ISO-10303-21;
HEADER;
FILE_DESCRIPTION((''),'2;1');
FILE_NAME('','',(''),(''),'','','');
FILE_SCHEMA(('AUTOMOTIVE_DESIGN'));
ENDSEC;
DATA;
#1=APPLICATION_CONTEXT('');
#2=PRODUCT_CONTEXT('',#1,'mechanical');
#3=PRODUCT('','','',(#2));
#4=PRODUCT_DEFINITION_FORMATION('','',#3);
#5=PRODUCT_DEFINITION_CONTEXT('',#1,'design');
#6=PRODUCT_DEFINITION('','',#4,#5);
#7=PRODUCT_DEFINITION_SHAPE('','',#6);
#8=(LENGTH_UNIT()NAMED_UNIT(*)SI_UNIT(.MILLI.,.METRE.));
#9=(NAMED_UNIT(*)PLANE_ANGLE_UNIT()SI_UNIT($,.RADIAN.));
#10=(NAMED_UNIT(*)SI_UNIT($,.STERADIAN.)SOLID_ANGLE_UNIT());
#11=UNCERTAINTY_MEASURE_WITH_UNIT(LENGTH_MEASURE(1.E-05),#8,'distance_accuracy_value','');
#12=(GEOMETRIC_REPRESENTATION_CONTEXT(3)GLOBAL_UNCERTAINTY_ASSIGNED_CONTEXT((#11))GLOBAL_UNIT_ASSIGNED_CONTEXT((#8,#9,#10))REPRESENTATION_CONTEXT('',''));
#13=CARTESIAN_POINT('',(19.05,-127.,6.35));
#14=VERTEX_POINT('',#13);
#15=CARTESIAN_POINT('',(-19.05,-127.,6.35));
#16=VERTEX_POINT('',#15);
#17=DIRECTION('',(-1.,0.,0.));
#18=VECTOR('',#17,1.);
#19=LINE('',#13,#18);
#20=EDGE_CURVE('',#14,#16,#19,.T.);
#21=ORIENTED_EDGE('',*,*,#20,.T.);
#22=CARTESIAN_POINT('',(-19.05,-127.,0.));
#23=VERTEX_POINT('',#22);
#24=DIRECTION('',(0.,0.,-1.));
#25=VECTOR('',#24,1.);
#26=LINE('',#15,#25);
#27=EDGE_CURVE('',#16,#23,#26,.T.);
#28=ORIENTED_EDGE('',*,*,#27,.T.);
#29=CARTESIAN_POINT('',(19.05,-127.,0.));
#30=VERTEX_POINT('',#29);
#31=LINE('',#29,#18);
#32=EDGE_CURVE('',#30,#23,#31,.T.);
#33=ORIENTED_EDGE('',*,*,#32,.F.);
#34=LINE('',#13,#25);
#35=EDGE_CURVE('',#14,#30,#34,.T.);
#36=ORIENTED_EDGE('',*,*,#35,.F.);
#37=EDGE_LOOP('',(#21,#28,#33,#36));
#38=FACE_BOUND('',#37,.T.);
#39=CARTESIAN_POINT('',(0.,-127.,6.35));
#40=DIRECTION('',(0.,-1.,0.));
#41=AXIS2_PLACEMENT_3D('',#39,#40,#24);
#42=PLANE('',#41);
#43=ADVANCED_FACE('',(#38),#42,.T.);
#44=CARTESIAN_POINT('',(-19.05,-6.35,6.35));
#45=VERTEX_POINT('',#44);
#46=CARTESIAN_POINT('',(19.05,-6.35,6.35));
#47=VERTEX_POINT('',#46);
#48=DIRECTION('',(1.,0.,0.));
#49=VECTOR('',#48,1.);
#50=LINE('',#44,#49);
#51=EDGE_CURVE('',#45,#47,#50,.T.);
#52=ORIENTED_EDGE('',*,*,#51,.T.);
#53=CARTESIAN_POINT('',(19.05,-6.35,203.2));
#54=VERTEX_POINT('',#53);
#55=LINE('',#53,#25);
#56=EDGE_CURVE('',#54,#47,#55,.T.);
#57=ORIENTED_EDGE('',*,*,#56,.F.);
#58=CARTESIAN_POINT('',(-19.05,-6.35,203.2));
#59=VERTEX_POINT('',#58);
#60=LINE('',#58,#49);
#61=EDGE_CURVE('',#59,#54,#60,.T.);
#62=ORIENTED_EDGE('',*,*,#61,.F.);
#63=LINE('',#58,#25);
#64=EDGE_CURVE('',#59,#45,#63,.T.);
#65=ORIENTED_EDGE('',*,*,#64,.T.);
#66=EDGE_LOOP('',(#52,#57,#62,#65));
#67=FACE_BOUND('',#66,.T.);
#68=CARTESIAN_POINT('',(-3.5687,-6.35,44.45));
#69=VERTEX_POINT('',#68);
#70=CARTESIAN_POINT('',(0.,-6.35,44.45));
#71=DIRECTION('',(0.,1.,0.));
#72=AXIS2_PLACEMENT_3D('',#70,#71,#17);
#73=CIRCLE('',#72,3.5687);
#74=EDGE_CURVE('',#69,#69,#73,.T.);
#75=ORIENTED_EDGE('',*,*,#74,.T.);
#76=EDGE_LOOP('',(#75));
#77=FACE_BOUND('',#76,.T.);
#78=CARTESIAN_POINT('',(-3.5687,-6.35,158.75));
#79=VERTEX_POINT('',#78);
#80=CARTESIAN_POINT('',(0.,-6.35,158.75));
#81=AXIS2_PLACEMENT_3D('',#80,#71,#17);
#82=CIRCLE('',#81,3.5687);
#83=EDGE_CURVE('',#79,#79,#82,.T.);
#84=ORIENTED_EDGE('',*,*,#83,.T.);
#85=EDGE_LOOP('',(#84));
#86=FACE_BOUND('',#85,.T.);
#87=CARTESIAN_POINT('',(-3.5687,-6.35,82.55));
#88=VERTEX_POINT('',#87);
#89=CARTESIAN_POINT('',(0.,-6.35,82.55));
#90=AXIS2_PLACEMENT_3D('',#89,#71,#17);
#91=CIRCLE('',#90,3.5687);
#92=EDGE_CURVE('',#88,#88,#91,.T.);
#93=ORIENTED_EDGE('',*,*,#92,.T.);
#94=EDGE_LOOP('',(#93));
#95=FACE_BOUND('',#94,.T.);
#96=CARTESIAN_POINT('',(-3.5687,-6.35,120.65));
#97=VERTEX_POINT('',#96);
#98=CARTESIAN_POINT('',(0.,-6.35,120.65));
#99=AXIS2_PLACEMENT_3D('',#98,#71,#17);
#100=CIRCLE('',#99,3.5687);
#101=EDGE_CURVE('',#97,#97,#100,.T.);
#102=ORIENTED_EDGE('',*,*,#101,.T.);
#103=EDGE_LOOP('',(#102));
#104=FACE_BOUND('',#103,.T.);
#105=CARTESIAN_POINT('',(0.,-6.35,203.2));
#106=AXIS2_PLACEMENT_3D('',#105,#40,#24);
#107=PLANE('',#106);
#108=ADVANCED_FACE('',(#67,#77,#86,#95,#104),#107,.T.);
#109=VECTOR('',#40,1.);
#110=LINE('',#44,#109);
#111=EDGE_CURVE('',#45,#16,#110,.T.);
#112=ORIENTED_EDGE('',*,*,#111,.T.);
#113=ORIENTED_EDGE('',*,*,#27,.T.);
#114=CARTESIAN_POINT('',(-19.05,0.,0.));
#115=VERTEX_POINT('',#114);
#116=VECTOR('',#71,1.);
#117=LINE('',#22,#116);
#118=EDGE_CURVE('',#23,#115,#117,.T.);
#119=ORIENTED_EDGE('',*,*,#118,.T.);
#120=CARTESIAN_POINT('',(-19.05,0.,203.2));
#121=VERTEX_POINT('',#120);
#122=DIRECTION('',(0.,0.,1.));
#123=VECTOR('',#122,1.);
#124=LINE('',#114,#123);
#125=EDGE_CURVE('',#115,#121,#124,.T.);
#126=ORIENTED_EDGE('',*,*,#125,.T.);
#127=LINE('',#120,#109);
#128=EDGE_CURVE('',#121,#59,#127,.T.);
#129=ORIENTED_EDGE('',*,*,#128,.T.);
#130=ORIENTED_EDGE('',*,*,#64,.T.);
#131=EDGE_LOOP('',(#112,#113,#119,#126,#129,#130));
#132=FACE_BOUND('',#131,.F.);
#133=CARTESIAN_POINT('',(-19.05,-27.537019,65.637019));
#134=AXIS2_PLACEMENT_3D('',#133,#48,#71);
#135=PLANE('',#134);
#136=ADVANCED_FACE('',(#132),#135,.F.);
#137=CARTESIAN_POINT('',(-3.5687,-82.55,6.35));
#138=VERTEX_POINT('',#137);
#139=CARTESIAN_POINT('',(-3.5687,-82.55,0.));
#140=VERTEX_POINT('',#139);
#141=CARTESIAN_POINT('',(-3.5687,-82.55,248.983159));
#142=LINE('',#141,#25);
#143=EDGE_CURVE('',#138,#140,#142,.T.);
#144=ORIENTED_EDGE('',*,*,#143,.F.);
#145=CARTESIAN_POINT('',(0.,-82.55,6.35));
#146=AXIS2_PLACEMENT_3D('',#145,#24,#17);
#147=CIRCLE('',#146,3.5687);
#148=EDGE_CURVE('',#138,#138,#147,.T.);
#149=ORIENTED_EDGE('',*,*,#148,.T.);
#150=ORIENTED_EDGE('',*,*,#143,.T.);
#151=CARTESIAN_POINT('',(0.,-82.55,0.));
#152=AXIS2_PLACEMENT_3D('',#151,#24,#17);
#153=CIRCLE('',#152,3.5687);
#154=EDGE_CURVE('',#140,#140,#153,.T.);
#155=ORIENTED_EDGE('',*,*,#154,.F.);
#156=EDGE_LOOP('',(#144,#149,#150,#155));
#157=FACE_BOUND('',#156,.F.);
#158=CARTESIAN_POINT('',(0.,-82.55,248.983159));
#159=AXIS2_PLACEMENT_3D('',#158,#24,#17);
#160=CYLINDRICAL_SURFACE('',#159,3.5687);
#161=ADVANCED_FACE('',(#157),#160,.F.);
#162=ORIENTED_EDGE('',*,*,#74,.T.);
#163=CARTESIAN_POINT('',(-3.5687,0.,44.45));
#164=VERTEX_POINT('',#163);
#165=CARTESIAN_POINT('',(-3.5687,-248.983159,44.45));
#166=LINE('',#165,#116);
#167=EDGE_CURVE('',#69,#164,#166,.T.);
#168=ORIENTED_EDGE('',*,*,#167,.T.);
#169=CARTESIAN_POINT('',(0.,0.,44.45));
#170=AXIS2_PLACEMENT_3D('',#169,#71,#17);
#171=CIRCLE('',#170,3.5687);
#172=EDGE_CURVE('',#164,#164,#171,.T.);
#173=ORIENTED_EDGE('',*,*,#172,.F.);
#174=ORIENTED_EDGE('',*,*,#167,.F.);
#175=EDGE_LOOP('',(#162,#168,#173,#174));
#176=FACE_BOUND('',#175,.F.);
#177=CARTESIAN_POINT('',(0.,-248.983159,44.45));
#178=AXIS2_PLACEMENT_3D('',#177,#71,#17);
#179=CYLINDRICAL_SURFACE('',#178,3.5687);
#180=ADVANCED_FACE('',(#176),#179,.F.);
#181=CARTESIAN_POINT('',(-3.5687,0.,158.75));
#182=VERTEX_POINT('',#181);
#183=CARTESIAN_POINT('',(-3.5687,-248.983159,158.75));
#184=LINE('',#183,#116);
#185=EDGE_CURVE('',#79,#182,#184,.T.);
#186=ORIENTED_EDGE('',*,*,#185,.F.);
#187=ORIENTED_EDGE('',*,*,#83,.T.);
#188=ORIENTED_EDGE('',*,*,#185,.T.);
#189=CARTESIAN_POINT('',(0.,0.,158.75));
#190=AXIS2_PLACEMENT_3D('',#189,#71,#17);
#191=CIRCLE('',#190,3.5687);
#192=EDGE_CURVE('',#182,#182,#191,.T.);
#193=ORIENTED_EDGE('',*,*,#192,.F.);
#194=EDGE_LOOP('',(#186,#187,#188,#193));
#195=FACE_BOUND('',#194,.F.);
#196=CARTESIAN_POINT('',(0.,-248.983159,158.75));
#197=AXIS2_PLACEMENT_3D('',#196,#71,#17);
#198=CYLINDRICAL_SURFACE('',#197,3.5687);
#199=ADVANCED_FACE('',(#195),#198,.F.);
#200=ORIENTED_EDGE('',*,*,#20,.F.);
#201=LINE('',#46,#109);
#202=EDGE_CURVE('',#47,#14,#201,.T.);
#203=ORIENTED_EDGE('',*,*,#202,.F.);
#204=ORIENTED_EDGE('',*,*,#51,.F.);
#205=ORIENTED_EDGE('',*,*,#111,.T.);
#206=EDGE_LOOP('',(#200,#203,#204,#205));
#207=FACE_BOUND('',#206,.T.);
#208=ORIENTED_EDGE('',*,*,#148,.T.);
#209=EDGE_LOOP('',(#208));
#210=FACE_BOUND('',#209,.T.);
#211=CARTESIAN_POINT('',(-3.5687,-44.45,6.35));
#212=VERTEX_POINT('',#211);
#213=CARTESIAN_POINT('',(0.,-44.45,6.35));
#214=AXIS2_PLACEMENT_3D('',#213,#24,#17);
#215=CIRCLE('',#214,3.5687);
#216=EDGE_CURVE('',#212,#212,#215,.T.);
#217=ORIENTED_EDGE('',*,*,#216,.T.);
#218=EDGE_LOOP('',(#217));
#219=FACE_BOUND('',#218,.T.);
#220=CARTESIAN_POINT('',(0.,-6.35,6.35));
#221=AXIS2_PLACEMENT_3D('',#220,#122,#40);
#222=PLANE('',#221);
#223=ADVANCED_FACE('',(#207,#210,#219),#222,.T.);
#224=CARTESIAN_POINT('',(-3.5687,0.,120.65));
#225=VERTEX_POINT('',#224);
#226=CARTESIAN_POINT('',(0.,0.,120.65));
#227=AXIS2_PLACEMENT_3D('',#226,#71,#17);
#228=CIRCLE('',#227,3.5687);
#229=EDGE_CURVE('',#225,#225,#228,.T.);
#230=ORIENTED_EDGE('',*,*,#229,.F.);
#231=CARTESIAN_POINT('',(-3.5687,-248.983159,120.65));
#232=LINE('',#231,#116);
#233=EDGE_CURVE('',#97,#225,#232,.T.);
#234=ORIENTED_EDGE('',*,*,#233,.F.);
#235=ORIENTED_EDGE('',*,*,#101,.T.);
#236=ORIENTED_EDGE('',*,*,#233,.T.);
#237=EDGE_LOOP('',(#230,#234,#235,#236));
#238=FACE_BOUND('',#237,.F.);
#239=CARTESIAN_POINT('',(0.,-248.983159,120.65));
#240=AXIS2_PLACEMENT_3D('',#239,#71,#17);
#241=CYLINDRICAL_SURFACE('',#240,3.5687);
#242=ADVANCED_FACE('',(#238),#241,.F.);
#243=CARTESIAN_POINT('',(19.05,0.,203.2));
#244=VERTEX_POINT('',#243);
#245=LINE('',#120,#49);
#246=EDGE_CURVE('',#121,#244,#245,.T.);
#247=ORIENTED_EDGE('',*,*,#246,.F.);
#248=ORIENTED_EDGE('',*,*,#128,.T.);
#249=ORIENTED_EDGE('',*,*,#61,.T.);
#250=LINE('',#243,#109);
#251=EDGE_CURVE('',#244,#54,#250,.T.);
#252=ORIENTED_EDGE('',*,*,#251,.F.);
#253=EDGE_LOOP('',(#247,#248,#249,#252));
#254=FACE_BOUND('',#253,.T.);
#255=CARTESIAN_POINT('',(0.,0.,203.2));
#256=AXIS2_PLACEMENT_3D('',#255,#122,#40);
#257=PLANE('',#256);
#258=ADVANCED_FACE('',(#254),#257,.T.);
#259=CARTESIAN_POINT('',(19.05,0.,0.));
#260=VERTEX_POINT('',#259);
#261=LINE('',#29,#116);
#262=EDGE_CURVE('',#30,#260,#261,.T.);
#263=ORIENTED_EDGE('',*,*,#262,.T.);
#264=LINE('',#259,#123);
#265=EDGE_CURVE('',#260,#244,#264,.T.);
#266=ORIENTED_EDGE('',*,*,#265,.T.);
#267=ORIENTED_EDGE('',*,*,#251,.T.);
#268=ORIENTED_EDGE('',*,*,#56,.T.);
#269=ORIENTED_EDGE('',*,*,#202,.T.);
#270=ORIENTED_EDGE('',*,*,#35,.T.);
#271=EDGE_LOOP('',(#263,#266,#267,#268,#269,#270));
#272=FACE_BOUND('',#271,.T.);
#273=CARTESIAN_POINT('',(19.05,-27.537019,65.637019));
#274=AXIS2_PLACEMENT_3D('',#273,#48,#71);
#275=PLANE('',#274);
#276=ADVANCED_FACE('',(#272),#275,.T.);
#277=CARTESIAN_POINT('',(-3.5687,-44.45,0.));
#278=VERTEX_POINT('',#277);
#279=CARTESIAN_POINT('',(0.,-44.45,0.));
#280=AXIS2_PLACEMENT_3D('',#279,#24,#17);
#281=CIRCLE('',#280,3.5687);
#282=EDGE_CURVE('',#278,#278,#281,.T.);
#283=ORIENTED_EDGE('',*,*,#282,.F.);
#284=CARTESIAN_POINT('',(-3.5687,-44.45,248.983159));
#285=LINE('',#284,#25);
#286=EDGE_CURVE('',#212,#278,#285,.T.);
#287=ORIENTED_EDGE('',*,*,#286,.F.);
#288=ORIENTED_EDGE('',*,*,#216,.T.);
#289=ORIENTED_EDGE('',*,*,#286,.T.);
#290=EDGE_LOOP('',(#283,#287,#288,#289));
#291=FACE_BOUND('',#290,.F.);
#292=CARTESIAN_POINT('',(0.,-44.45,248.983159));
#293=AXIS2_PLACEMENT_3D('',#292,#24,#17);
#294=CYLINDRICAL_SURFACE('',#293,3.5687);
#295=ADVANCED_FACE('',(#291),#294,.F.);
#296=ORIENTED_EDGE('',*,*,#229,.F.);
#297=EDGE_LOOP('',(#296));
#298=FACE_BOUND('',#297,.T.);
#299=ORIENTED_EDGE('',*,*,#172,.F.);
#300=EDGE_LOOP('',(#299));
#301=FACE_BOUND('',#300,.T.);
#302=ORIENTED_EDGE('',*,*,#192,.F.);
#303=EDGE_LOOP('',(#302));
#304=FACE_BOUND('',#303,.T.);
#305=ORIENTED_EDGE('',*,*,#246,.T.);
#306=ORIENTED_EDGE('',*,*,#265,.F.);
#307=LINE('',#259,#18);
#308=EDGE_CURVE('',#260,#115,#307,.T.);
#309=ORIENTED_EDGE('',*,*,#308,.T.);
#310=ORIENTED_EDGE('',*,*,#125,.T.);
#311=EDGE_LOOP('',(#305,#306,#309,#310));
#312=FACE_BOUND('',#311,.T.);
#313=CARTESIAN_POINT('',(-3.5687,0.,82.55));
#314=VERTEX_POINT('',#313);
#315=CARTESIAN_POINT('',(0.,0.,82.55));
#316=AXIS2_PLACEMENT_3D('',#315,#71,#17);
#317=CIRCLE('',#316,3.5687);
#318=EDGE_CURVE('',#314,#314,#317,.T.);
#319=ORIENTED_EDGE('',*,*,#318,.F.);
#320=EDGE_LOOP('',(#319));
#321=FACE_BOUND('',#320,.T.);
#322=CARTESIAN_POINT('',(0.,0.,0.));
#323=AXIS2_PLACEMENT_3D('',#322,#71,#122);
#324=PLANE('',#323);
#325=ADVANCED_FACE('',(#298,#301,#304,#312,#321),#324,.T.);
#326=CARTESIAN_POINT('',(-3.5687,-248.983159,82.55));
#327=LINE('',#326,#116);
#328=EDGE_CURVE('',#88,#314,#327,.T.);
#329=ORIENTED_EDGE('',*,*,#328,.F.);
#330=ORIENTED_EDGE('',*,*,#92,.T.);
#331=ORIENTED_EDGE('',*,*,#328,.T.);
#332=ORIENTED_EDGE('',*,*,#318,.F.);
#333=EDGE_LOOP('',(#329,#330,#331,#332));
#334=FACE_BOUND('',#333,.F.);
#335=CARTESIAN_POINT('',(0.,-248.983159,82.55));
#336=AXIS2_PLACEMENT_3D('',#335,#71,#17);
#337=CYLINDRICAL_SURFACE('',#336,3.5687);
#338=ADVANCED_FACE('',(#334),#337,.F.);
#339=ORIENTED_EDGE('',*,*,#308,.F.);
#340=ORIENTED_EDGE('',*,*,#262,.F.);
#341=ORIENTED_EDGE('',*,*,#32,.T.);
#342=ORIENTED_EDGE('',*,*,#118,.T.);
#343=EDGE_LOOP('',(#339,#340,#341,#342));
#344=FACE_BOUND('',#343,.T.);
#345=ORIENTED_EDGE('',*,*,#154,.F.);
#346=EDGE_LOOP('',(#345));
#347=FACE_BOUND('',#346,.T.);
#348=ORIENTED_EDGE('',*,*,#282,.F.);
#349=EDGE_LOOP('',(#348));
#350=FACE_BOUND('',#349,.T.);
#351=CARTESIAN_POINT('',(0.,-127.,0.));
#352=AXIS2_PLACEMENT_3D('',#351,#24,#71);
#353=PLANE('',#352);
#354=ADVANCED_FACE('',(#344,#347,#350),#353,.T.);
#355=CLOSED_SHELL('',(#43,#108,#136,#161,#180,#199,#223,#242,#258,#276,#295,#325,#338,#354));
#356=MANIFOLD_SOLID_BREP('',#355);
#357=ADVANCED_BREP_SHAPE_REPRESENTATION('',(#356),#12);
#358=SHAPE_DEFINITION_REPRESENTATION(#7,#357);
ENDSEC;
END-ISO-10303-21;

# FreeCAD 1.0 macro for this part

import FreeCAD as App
import Part
import Sketcher
Q = App.Units.Quantity

doc = App.newDocument("Part")
body = doc.addObject("PartDesign::Body", "Body")

sketch1 = body.newObject("Sketcher::SketchObject", "Sketch")
sketch1.AttachmentSupport = (doc.getObject("YZ_Plane"), [""])
sketch1.MapMode = "FlatFace"
sketch1.addGeometry(Part.LineSegment(App.Vector(0, 0, 0), App.Vector(0, 203, 0)), False)
sketch1.addGeometry(Part.LineSegment(App.Vector(0, 203, 0), App.Vector(-6, 203, 0)), False)
sketch1.addGeometry(Part.LineSegment(App.Vector(-6, 203, 0), App.Vector(-6, 6, 0)), False)
sketch1.addGeometry(Part.LineSegment(App.Vector(-6, 6, 0), App.Vector(-127, 6, 0)), False)
sketch1.addGeometry(Part.LineSegment(App.Vector(-127, 6, 0), App.Vector(-127, 0, 0)), False)
sketch1.addGeometry(Part.LineSegment(App.Vector(-127, 0, 0), App.Vector(0, 0, 0)), False)
sketch1.addConstraint(Sketcher.Constraint("Coincident", 0, 2, 1, 1))
sketch1.addConstraint(Sketcher.Constraint("Coincident", 1, 2, 2, 1))
sketch1.addConstraint(Sketcher.Constraint("Coincident", 2, 2, 3, 1))
sketch1.addConstraint(Sketcher.Constraint("Coincident", 3, 2, 4, 1))
sketch1.addConstraint(Sketcher.Constraint("Coincident", 4, 2, 5, 1))
sketch1.addConstraint(Sketcher.Constraint("Coincident", 5, 2, 0, 1))
sketch1.addConstraint(Sketcher.Constraint("Vertical", 0))
sketch1.addConstraint(Sketcher.Constraint("Horizontal", 1))
sketch1.addConstraint(Sketcher.Constraint("Vertical", 2))
sketch1.addConstraint(Sketcher.Constraint("Horizontal", 3))
sketch1.addConstraint(Sketcher.Constraint("Vertical", 4))
sketch1.addConstraint(Sketcher.Constraint("Horizontal", 5))
sketch1.addConstraint(Sketcher.Constraint("Coincident", 5, 2, -1, 1))
sketch1.addConstraint(Sketcher.Constraint("Equal", 1, 4))
sketch1.addConstraint(Sketcher.Constraint("DistanceX", 5, 1, 5, 2, Q("5 in")))
sketch1.addConstraint(Sketcher.Constraint("DistanceY", 0, 1, 0, 2, Q("8 in")))
sketch1.addConstraint(Sketcher.Constraint("DistanceX", 1, 2, 1, 1, Q("0.25 in")))
pad1 = body.newObject("PartDesign::Pad", "Pad")
pad1.Profile = sketch1
pad1.Length = Q("1.5 in")
pad1.Midplane = True

sketch2 = body.newObject("Sketcher::SketchObject", "Sketch001")
sketch2.AttachmentSupport = (doc.getObject("XZ_Plane"), [""])
sketch2.MapMode = "FlatFace"
sketch2.AttachmentOffset = App.Placement(App.Vector(0, 0, 0.25 * 25.4), App.Rotation())
sketch2.addGeometry(Part.Circle(App.Vector(0, 158.7, 0), App.Vector(0, 0, 1), 3.6), False)
sketch2.addGeometry(Part.Circle(App.Vector(0, 120.6, 0), App.Vector(0, 0, 1), 3.6), False)
sketch2.addGeometry(Part.Circle(App.Vector(0, 82.5, 0), App.Vector(0, 0, 1), 3.6), False)
sketch2.addGeometry(Part.Circle(App.Vector(0, 44.4, 0), App.Vector(0, 0, 1), 3.6), False)
sketch2.addConstraint(Sketcher.Constraint("Equal", 0, 1))
sketch2.addConstraint(Sketcher.Constraint("Equal", 1, 2))
sketch2.addConstraint(Sketcher.Constraint("Equal", 2, 3))
sketch2.addConstraint(Sketcher.Constraint("PointOnObject", 0, 3, -2))
sketch2.addConstraint(Sketcher.Constraint("PointOnObject", 1, 3, -2))
sketch2.addConstraint(Sketcher.Constraint("PointOnObject", 2, 3, -2))
sketch2.addConstraint(Sketcher.Constraint("PointOnObject", 3, 3, -2))
sketch2.addConstraint(Sketcher.Constraint("Diameter", 0, Q("0.281 in")))
sketch2.addConstraint(Sketcher.Constraint("DistanceY", 2, 3, 0, 3, Q("3 in")))
sketch2.addConstraint(Sketcher.Constraint("DistanceY", 3, 3, 1, 3, Q("3 in")))
sketch2.addConstraint(Sketcher.Constraint("DistanceY", 1, 3, 0, 3, Q("1.5 in")))
sketch2.addConstraint(Sketcher.Constraint("DistanceY", -1, 1, 0, 3, Q("6.25 in")))
doc.recompute()
hole = body.newObject("PartDesign::Hole", "Hole")
hole.Profile = sketch2
hole.ThreadType = "None"
hole.Diameter = Q("0.281 in")
hole.DepthType = "ThroughAll"

sketch3 = body.newObject("Sketcher::SketchObject", "Sketch002")
sketch3.AttachmentSupport = (doc.getObject("XY_Plane"), [""])
sketch3.MapMode = "FlatFace"
sketch3.AttachmentOffset = App.Placement(App.Vector(0, 0, 0.25 * 25.4), App.Rotation())
sketch3.addGeometry(Part.Circle(App.Vector(0, -44.4, 0), App.Vector(0, 0, 1), 3.6), False)
sketch3.addGeometry(Part.Circle(App.Vector(0, -82.5, 0), App.Vector(0, 0, 1), 3.6), False)
sketch3.addConstraint(Sketcher.Constraint("Equal", 0, 1))
sketch3.addConstraint(Sketcher.Constraint("PointOnObject", 0, 3, -2))
sketch3.addConstraint(Sketcher.Constraint("PointOnObject", 1, 3, -2))
sketch3.addConstraint(Sketcher.Constraint("Diameter", 0, Q("0.281 in")))
sketch3.addConstraint(Sketcher.Constraint("DistanceY", 1, 3, 0, 3, Q("1.5 in")))
sketch3.addConstraint(Sketcher.Constraint("DistanceY", 0, 3, -1, 1, Q("1.75 in")))
doc.recompute()
hole2 = body.newObject("PartDesign::Hole", "Hole001")
hole2.Profile = sketch3
hole2.ThreadType = "None"
hole2.Diameter = Q("0.281 in")
hole2.DepthType = "ThroughAll"

doc.recompute()
